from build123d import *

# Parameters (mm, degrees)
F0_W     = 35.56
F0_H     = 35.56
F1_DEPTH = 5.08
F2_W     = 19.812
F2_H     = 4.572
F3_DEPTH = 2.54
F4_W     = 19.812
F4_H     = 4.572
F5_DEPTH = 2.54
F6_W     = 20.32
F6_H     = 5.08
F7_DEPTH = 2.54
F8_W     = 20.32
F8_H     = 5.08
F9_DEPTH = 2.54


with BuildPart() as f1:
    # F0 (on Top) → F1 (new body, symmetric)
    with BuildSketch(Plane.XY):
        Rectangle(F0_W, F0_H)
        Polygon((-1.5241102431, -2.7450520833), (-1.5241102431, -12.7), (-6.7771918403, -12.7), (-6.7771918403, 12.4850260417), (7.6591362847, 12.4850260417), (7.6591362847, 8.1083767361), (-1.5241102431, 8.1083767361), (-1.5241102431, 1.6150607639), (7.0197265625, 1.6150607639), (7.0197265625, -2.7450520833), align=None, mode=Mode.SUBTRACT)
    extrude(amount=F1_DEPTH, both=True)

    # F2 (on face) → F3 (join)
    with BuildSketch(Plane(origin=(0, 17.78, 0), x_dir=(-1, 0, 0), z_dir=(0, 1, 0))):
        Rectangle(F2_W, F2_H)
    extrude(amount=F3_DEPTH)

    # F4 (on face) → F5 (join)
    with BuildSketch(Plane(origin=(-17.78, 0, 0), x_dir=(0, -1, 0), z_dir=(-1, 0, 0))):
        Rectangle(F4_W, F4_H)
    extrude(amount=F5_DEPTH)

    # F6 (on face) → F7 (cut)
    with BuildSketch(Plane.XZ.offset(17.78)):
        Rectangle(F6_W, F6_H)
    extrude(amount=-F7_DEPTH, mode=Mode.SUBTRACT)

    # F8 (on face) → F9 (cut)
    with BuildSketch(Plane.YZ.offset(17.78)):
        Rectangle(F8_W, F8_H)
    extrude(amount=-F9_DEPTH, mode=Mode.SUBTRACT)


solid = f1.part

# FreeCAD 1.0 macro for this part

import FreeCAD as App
import Part
import Sketcher
from FreeCAD import Vector
Q = App.Units.Quantity


def add_polygon(sketch, points):
    """Adds a closed chain of lines whose ends are joined by coincident constraints."""
    first, n = sketch.GeometryCount, len(points)
    for a, b in zip(points, points[1:] + points[:1]):
        sketch.addGeometry(Part.LineSegment(App.Vector(*a, 0), App.Vector(*b, 0)), False)
    for i in range(n):
        sketch.addConstraint(Sketcher.Constraint("Coincident", first + i, 2, first + (i + 1) % n, 1))

doc = App.newDocument("Part")
params = doc.addObject("Spreadsheet::Sheet", "Params")
for row, (alias, value) in enumerate([
    ("sketch1_width", "1.4 in"),
    ("pad1_length", "0.4 in"),
    ("sketch2_width", "0.78 in"),
    ("sketch2_height", "0.18 in"),
    ("pad2_length", "0.1 in"),
    ("sketch3_width", "0.78 in"),
    ("sketch3_height", "0.18 in"),
    ("pad3_length", "0.1 in"),
    ("sketch4_width", "0.8 in"),
    ("sketch4_height", "0.2 in"),
    ("pocket1_length", "0.1 in"),
    ("sketch5_width", "0.8 in"),
    ("sketch5_height", "0.2 in"),
    ("pocket2_length", "0.1 in"),
], start=1):
    params.set(f"A{row}", alias)
    params.set(f"B{row}", "=" + value)
    params.setAlias(f"B{row}", alias)

body = doc.addObject("PartDesign::Body", "Body")

# Sketch on XY plane
sketch1 = body.newObject("Sketcher::SketchObject", "Sketch")
sketch1.AttachmentSupport = (doc.getObject("XY_Plane"), [""])
sketch1.MapMode = "FlatFace"
add_polygon(sketch1, [(-17.8, 17.8), (-17.8, -17.8), (17.8, -17.8), (17.8, 17.8)])  # lines 0-3
add_polygon(sketch1, [(7, -2.7), (-1.5, -2.7), (-1.5, -12.7), (-6.8, -12.7), (-6.8, 12.5), (7.7, 12.5), (7.7, 8.1), (-1.5, 8.1), (-1.5, 1.6), (7, 1.6)])  # lines 4-13
sketch1.addConstraint([
    Sketcher.Constraint("Vertical", 0),
    Sketcher.Constraint("Horizontal", 1),
    Sketcher.Constraint("Vertical", 2),
    Sketcher.Constraint("Horizontal", 3),
    Sketcher.Constraint("Horizontal", 4),
    Sketcher.Constraint("Vertical", 5),
    Sketcher.Constraint("Horizontal", 6),
    Sketcher.Constraint("Vertical", 7),
    Sketcher.Constraint("Horizontal", 8),
    Sketcher.Constraint("Vertical", 9),
    Sketcher.Constraint("Horizontal", 10),
    Sketcher.Constraint("Vertical", 11),
    Sketcher.Constraint("Horizontal", 12),
    Sketcher.Constraint("Vertical", 13),
    Sketcher.Constraint("Symmetric", 0, 2, 2, 2, -1, 1),
    Sketcher.Constraint("Vertical", 5, 2, 10, 2),
    Sketcher.Constraint("Equal", 3, 0),
    Sketcher.Constraint("DistanceX", 1, 1, 1, 2, Q("1.4 in")),
    Sketcher.Constraint("DistanceY", 5, 2, -1, 1, Q("0.5 in")),
    Sketcher.Constraint("DistanceX", 6, 2, 6, 1, Q("5.253082 mm")),
    Sketcher.Constraint("DistanceX", 8, 1, 8, 2, Q("14.436328 mm")),
    Sketcher.Constraint("DistanceY", 9, 2, 9, 1, Q("4.376649 mm")),
    Sketcher.Constraint("DistanceX", 4, 2, 4, 1, Q("8.543837 mm")),
    Sketcher.Constraint("DistanceY", 5, 2, 5, 1, Q("9.954948 mm")),
    Sketcher.Constraint("DistanceY", 7, 1, 7, 2, Q("25.185026 mm")),
    Sketcher.Constraint("DistanceY", 11, 2, 11, 1, Q("6.493316 mm")),
    Sketcher.Constraint("DistanceX", 4, 2, -1, 1, Q("1.52411 mm")),
])
sketch1.setExpression("Constraints[31]", "Params.sketch1_width")
pad1 = body.newObject("PartDesign::Pad", "Pad")
pad1.Profile = sketch1
pad1.setExpression("Length", "Params.pad1_length")
pad1.Midplane = True

# Sketch on XZ plane
sketch2 = body.newObject("Sketcher::SketchObject", "Sketch001")
sketch2.AttachmentSupport = (doc.getObject("XZ_Plane"), [""])
sketch2.MapMode = "FlatFace"
sketch2.AttachmentOffset = App.Placement(Vector(0, 0, -0.7 * 25.4), App.Rotation())
add_polygon(sketch2, [(9.9, 2.3), (9.9, -2.3), (-9.9, -2.3), (-9.9, 2.3)])  # lines 0-3
sketch2.addConstraint([
    Sketcher.Constraint("Vertical", 0),
    Sketcher.Constraint("Horizontal", 1),
    Sketcher.Constraint("Vertical", 2),
    Sketcher.Constraint("Horizontal", 3),
    Sketcher.Constraint("Symmetric", 0, 2, 2, 2, -1, 1),
    Sketcher.Constraint("DistanceX", 1, 2, 1, 1, Q("0.78 in")),
    Sketcher.Constraint("DistanceY", 0, 2, 0, 1, Q("0.18 in")),
])
sketch2.setExpression("Constraints[9]", "Params.sketch2_width")
sketch2.setExpression("Constraints[10]", "Params.sketch2_height")
pad2 = body.newObject("PartDesign::Pad", "Pad001")
pad2.Profile = sketch2
pad2.setExpression("Length", "Params.pad2_length")
pad2.Reversed = True

# Sketch on YZ plane
sketch3 = body.newObject("Sketcher::SketchObject", "Sketch002")
sketch3.AttachmentSupport = (doc.getObject("YZ_Plane"), [""])
sketch3.MapMode = "FlatFace"
sketch3.AttachmentOffset = App.Placement(Vector(0, 0, -0.7 * 25.4), App.Rotation())
add_polygon(sketch3, [(9.9, 2.3), (9.9, -2.3), (-9.9, -2.3), (-9.9, 2.3)])  # lines 0-3
sketch3.addConstraint([
    Sketcher.Constraint("Vertical", 0),
    Sketcher.Constraint("Horizontal", 1),
    Sketcher.Constraint("Vertical", 2),
    Sketcher.Constraint("Horizontal", 3),
    Sketcher.Constraint("Symmetric", 0, 2, 2, 2, -1, 1),
    Sketcher.Constraint("DistanceX", 1, 2, 1, 1, Q("0.78 in")),
    Sketcher.Constraint("DistanceY", 0, 2, 0, 1, Q("0.18 in")),
])
sketch3.setExpression("Constraints[9]", "Params.sketch3_width")
sketch3.setExpression("Constraints[10]", "Params.sketch3_height")
pad3 = body.newObject("PartDesign::Pad", "Pad002")
pad3.Profile = sketch3
pad3.setExpression("Length", "Params.pad3_length")
pad3.Reversed = True

# Sketch on XZ plane
sketch4 = body.newObject("Sketcher::SketchObject", "Sketch003")
sketch4.AttachmentSupport = (doc.getObject("XZ_Plane"), [""])
sketch4.MapMode = "FlatFace"
sketch4.AttachmentOffset = App.Placement(Vector(0, 0, 0.7 * 25.4), App.Rotation())
add_polygon(sketch4, [(-10, 3), (-10, -3), (10, -3), (10, 3)])  # lines 0-3
sketch4.addConstraint([
    Sketcher.Constraint("Vertical", 0),
    Sketcher.Constraint("Horizontal", 1),
    Sketcher.Constraint("Vertical", 2),
    Sketcher.Constraint("Horizontal", 3),
    Sketcher.Constraint("Symmetric", 0, 2, 2, 2, -1, 1),
    Sketcher.Constraint("DistanceX", 1, 1, 1, 2, Q("0.8 in")),
    Sketcher.Constraint("DistanceY", 0, 2, 0, 1, Q("0.2 in")),
])
sketch4.setExpression("Constraints[9]", "Params.sketch4_width")
sketch4.setExpression("Constraints[10]", "Params.sketch4_height")
pocket1 = body.newObject("PartDesign::Pocket", "Pocket")
pocket1.Profile = sketch4
pocket1.setExpression("Length", "Params.pocket1_length")

# Sketch on YZ plane
sketch5 = body.newObject("Sketcher::SketchObject", "Sketch004")
sketch5.AttachmentSupport = (doc.getObject("YZ_Plane"), [""])
sketch5.MapMode = "FlatFace"
sketch5.AttachmentOffset = App.Placement(Vector(0, 0, 0.7 * 25.4), App.Rotation())
add_polygon(sketch5, [(-10, 3), (-10, -3), (10, -3), (10, 3)])  # lines 0-3
sketch5.addConstraint([
    Sketcher.Constraint("Vertical", 0),
    Sketcher.Constraint("Horizontal", 1),
    Sketcher.Constraint("Vertical", 2),
    Sketcher.Constraint("Horizontal", 3),
    Sketcher.Constraint("Symmetric", 0, 2, 2, 2, -1, 1),
    Sketcher.Constraint("DistanceX", 1, 1, 1, 2, Q("0.8 in")),
    Sketcher.Constraint("DistanceY", 0, 2, 0, 1, Q("0.2 in")),
])
sketch5.setExpression("Constraints[9]", "Params.sketch5_width")
sketch5.setExpression("Constraints[10]", "Params.sketch5_height")
pocket2 = body.newObject("PartDesign::Pocket", "Pocket001")
pocket2.Profile = sketch5
pocket2.setExpression("Length", "Params.pocket2_length")

doc.recompute()
